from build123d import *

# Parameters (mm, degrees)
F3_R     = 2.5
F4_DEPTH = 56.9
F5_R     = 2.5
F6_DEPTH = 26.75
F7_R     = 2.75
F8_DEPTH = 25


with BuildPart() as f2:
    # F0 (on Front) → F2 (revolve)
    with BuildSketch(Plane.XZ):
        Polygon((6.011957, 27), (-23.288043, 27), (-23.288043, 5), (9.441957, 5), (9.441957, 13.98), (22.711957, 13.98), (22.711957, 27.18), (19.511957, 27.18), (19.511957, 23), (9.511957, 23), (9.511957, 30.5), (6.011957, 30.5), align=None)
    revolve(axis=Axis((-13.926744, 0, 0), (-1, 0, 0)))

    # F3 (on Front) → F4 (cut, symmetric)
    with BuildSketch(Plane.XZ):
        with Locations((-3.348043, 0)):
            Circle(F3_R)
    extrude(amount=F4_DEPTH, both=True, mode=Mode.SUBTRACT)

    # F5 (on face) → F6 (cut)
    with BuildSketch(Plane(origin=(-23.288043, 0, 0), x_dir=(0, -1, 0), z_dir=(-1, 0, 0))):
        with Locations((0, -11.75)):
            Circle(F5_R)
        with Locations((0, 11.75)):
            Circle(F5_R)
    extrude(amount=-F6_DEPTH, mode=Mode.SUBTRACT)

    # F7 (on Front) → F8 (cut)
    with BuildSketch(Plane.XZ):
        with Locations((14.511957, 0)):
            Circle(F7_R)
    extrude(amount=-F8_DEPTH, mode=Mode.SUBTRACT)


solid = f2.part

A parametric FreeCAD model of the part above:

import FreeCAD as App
import Part
import Sketcher

V = App.Vector
Q = App.Units.Quantity


def add_polygon(sketch, points):
    """Adds a closed chain of lines whose ends are joined by coincident constraints."""
    first, n = sketch.GeometryCount, len(points)
    for a, b in zip(points, points[1:] + points[:1]):
        sketch.addGeometry(Part.LineSegment(App.Vector(*a, 0), App.Vector(*b, 0)), False)
    for i in range(n):
        sketch.addConstraint(Sketcher.Constraint("Coincident", first + i, 2, first + (i + 1) % n, 1))

doc = App.newDocument("Part")
params = doc.addObject("Spreadsheet::Sheet", "Params")
for row, (alias, value) in enumerate([
    ("sketch1_width", "10 mm"),
    ("sketch1_height", "22 mm"),
    ("sketch1_width2", "29.3 mm"),
    ("sketch1_width3", "3.2 mm"),
    ("sketch1_width4", "3.5 mm"),
    ("revolution_angle", "360 deg"),
    ("sketch2_diameter", "5 mm"),
    ("pocket1_length", "113.8 mm"),
    ("sketch3_diameter", "5 mm"),
    ("pocket2_length", "26.75 mm"),
    ("sketch4_diameter", "5.5 mm"),
    ("pocket3_length", "25 mm"),
], start=1):
    params.set(f"A{row}", alias)
    params.set(f"B{row}", "=" + value)
    params.setAlias(f"B{row}", alias)

body = doc.addObject("PartDesign::Body", "Body")

# Sketch on XZ plane
sketch1 = body.newObject("Sketcher::SketchObject", "Sketch")
sketch1.AttachmentSupport = (doc.getObject("XZ_Plane"), [""])
sketch1.MapMode = "FlatFace"
add_polygon(sketch1, [(6, 27), (-23.3, 27), (-23.3, 5), (9.4, 5), (9.4, 14), (22.7, 14), (22.7, 27.2), (19.5, 27.2), (19.5, 23), (9.5, 23), (9.5, 30.5), (6, 30.5)])  # lines 0-11
sketch1.addConstraint([
    Sketcher.Constraint("Horizontal", 0),
    Sketcher.Constraint("Vertical", 1),
    Sketcher.Constraint("Horizontal", 2),
    Sketcher.Constraint("Vertical", 3),
    Sketcher.Constraint("Horizontal", 4),
    Sketcher.Constraint("Vertical", 5),
    Sketcher.Constraint("Horizontal", 6),
    Sketcher.Constraint("Vertical", 7),
    Sketcher.Constraint("Horizontal", 8),
    Sketcher.Constraint("Vertical", 9),
    Sketcher.Constraint("Horizontal", 10),
    Sketcher.Constraint("Vertical", 11),
    Sketcher.Constraint("Equal", 10, 11),
    Sketcher.Constraint("DistanceX", 8, 2, 8, 1, Q("10 mm")),
    Sketcher.Constraint("DistanceY", 1, 2, 1, 1, Q("22 mm")),
    Sketcher.Constraint("DistanceX", 0, 2, 0, 1, Q("29.3 mm")),
    Sketcher.Constraint("DistanceX", 6, 2, 6, 1, Q("3.2 mm")),
    Sketcher.Constraint("DistanceX", 10, 2, 10, 1, Q("3.5 mm")),
    Sketcher.Constraint("DistanceY", 5, 1, 5, 2, Q("13.2 mm")),
    Sketcher.Constraint("DistanceY", 9, 1, 9, 2, Q("7.5 mm")),
    Sketcher.Constraint("DistanceY", -1, 1, 0, 2, Q("27 mm")),
    Sketcher.Constraint("DistanceX", 2, 1, 2, 2, Q("32.73 mm")),
    Sketcher.Constraint("DistanceY", 3, 1, 3, 2, Q("8.98 mm")),
    Sketcher.Constraint("DistanceX", 0, 2, -1, 1, Q("23.288043 mm")),
])
sketch1.setExpression("Constraints[25]", "Params.sketch1_width")
sketch1.setExpression("Constraints[26]", "Params.sketch1_height")
sketch1.setExpression("Constraints[27]", "Params.sketch1_width2")
sketch1.setExpression("Constraints[28]", "Params.sketch1_width3")
sketch1.setExpression("Constraints[29]", "Params.sketch1_width4")
revolution = body.newObject("PartDesign::Revolution", "Revolution")
revolution.Profile = sketch1
revolution.ReferenceAxis = (sketch1, ["H_Axis"])
revolution.setExpression("Angle", "Params.revolution_angle")

# Sketch on XZ plane
sketch2 = body.newObject("Sketcher::SketchObject", "Sketch001")
sketch2.AttachmentSupport = (doc.getObject("XZ_Plane"), [""])
sketch2.MapMode = "FlatFace"
sketch2.addGeometry(Part.Circle(V(-3.3, 0, 0), V(0, 0, 1), 2.5), False)
sketch2.addConstraint([
    Sketcher.Constraint("PointOnObject", 0, 3, -1),
    Sketcher.Constraint("Diameter", 0, Q("5 mm")),
    Sketcher.Constraint("DistanceX", 0, 3, -1, 1, Q("3.348043 mm")),
])
sketch2.setExpression("Constraints[1]", "Params.sketch2_diameter")
pocket1 = body.newObject("PartDesign::Pocket", "Pocket")
pocket1.Profile = sketch2
pocket1.setExpression("Length", "Params.pocket1_length")
pocket1.Midplane = True

# Sketch on YZ plane
sketch3 = body.newObject("Sketcher::SketchObject", "Sketch002")
sketch3.AttachmentSupport = (doc.getObject("YZ_Plane"), [""])
sketch3.MapMode = "FlatFace"
sketch3.AttachmentOffset = App.Placement(V(0, 0, -23.288043), App.Rotation())
sketch3.addGeometry([
    Part.Circle(V(0, -11.8, 0), V(0, 0, 1), 2.5),
    Part.Circle(V(0, 11.8, 0), V(0, 0, 1), 2.5),
], False)
sketch3.addConstraint([
    Sketcher.Constraint("Equal", 0, 1),
    Sketcher.Constraint("Symmetric", 0, 3, 1, 3, -1, 1),
    Sketcher.Constraint("PointOnObject", 0, 3, -2),
    Sketcher.Constraint("Diameter", 0, Q("5 mm")),
    Sketcher.Constraint("DistanceY", 0, 3, 1, 3, Q("23.5 mm")),
])
sketch3.setExpression("Constraints[3]", "Params.sketch3_diameter")
pocket2 = body.newObject("PartDesign::Pocket", "Pocket001")
pocket2.Profile = sketch3
pocket2.setExpression("Length", "Params.pocket2_length")
pocket2.Reversed = True

# Sketch on XZ plane
sketch4 = body.newObject("Sketcher::SketchObject", "Sketch003")
sketch4.AttachmentSupport = (doc.getObject("XZ_Plane"), [""])
sketch4.MapMode = "FlatFace"
sketch4.addGeometry(Part.Circle(V(14.5, 0, 0), V(0, 0, 1), 2.8), False)
sketch4.addConstraint([
    Sketcher.Constraint("PointOnObject", 0, 3, -1),
    Sketcher.Constraint("Diameter", 0, Q("5.5 mm")),
    Sketcher.Constraint("DistanceX", -1, 1, 0, 3, Q("14.511957 mm")),
])
sketch4.setExpression("Constraints[1]", "Params.sketch4_diameter")
pocket3 = body.newObject("PartDesign::Pocket", "Pocket002")
pocket3.Profile = sketch4
pocket3.setExpression("Length", "Params.pocket3_length")

doc.recompute()
